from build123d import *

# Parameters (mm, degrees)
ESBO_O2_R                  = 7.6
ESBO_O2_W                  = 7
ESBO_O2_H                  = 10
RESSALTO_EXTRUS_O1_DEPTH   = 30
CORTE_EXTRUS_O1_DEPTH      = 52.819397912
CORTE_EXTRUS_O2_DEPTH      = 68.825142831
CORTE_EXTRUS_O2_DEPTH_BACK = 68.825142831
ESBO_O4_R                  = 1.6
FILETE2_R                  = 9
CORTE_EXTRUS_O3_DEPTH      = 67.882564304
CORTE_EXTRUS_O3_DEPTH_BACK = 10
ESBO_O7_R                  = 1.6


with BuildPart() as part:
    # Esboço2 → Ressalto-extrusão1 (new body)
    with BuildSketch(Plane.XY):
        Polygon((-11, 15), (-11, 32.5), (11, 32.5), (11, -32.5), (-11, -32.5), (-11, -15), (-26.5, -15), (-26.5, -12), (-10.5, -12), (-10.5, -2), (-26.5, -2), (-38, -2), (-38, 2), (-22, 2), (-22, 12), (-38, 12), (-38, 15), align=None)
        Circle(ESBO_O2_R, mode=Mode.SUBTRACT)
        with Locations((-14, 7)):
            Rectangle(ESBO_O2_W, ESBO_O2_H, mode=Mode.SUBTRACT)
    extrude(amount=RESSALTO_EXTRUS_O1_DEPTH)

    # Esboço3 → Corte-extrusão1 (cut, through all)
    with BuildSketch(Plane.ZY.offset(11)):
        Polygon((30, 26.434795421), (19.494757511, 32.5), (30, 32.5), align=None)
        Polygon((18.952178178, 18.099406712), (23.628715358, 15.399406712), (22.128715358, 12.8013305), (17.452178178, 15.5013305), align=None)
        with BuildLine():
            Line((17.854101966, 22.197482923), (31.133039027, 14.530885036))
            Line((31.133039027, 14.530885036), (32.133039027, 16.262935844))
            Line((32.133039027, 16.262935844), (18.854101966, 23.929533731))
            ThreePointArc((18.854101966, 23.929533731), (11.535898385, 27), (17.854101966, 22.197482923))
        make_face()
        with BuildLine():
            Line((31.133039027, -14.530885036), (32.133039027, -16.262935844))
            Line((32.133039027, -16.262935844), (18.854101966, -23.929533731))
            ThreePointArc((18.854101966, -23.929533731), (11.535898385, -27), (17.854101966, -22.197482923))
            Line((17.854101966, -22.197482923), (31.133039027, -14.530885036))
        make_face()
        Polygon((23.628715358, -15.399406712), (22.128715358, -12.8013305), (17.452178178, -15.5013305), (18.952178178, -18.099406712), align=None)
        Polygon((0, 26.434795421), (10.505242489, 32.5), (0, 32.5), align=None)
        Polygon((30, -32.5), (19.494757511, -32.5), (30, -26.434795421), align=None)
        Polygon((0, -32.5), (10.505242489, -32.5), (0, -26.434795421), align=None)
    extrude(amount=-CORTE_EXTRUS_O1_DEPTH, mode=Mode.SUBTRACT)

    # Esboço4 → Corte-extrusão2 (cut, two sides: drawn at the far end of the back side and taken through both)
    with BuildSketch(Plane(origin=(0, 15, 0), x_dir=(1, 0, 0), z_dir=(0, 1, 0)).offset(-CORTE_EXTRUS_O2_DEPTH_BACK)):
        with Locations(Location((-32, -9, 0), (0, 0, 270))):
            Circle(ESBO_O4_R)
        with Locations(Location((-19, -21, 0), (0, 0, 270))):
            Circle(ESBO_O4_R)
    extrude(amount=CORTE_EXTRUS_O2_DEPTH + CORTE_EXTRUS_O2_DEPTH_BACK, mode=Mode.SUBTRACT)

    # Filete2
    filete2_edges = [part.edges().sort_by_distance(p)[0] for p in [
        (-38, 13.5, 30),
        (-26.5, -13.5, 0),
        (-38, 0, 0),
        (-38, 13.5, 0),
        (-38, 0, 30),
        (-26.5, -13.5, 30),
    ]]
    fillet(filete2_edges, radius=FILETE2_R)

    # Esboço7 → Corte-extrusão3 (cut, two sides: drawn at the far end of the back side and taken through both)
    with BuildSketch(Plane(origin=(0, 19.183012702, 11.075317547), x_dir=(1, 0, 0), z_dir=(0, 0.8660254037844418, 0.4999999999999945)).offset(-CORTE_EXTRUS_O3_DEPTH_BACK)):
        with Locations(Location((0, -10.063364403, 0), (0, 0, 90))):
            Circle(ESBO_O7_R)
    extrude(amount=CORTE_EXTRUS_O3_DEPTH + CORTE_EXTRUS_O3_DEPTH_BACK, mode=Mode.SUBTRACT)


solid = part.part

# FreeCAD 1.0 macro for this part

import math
import FreeCAD as App
import Part
import Sketcher
Q = App.Units.Quantity


def edges_at(feature, points):
    """Names of the edges that pass closest to the given points."""
    edges = feature.Shape.Edges
    near = lambda p: min(range(len(edges)), key=lambda i: edges[i].distToShape(Part.Vertex(*p))[0])
    return sorted({f"Edge{near(p) + 1}" for p in points})

doc = App.newDocument("Part")
body = doc.addObject("PartDesign::Body", "Body")

sketch1 = doc.addObject("Sketcher::SketchObject", "Sketch")
body.addObject(sketch1)
sketch1.AttachmentSupport = (doc.XY_Plane, [""])
sketch1.MapMode = "FlatFace"
sketch1.addGeometry([
    Part.LineSegment(App.Vector(-11, 32.5, 0), App.Vector(-11, 15, 0)),
    Part.LineSegment(App.Vector(-11, 15, 0), App.Vector(-38, 15, 0)),
    Part.LineSegment(App.Vector(-38, 15, 0), App.Vector(-38, 12, 0)),
    Part.LineSegment(App.Vector(-38, 12, 0), App.Vector(-22, 12, 0)),
    Part.LineSegment(App.Vector(-22, 12, 0), App.Vector(-22, 2, 0)),
    Part.LineSegment(App.Vector(-22, 2, 0), App.Vector(-38, 2, 0)),
    Part.LineSegment(App.Vector(-38, 2, 0), App.Vector(-38, -2, 0)),
    Part.LineSegment(App.Vector(-38, -2, 0), App.Vector(-10.5, -2, 0)),
    Part.LineSegment(App.Vector(-10.5, -2, 0), App.Vector(-10.5, -12, 0)),
    Part.LineSegment(App.Vector(-10.5, -12, 0), App.Vector(-26.5, -12, 0)),
    Part.LineSegment(App.Vector(-26.5, -12, 0), App.Vector(-26.5, -15, 0)),
    Part.LineSegment(App.Vector(-26.5, -15, 0), App.Vector(-11, -15, 0)),
    Part.LineSegment(App.Vector(-11, -15, 0), App.Vector(-11, -32.5, 0)),
    Part.LineSegment(App.Vector(-11, -32.5, 0), App.Vector(11, -32.5, 0)),
    Part.LineSegment(App.Vector(11, -32.5, 0), App.Vector(11, 32.5, 0)),
    Part.LineSegment(App.Vector(11, 32.5, 0), App.Vector(-11, 32.5, 0)),
    Part.Circle(App.Vector(0, 0, 0), App.Vector(0, 0, 1), 7.6),
    Part.LineSegment(App.Vector(-17.5, 2, 0), App.Vector(-17.5, 12, 0)),
    Part.LineSegment(App.Vector(-17.5, 12, 0), App.Vector(-10.5, 12, 0)),
    Part.LineSegment(App.Vector(-10.5, 12, 0), App.Vector(-10.5, 2, 0)),
    Part.LineSegment(App.Vector(-10.5, 2, 0), App.Vector(-17.5, 2, 0)),
], False)
sketch1.addConstraint([
    Sketcher.Constraint("Coincident", 0, 2, 1, 1),
    Sketcher.Constraint("Coincident", 1, 2, 2, 1),
    Sketcher.Constraint("Coincident", 2, 2, 3, 1),
    Sketcher.Constraint("Coincident", 3, 2, 4, 1),
    Sketcher.Constraint("Coincident", 4, 2, 5, 1),
    Sketcher.Constraint("Coincident", 5, 2, 6, 1),
    Sketcher.Constraint("Coincident", 6, 2, 7, 1),
    Sketcher.Constraint("Coincident", 7, 2, 8, 1),
    Sketcher.Constraint("Coincident", 8, 2, 9, 1),
    Sketcher.Constraint("Coincident", 9, 2, 10, 1),
    Sketcher.Constraint("Coincident", 10, 2, 11, 1),
    Sketcher.Constraint("Coincident", 11, 2, 12, 1),
    Sketcher.Constraint("Coincident", 12, 2, 13, 1),
    Sketcher.Constraint("Coincident", 13, 2, 14, 1),
    Sketcher.Constraint("Coincident", 14, 2, 15, 1),
    Sketcher.Constraint("Coincident", 15, 2, 0, 1),
    Sketcher.Constraint("Coincident", 17, 2, 18, 1),
    Sketcher.Constraint("Coincident", 18, 2, 19, 1),
    Sketcher.Constraint("Coincident", 19, 2, 20, 1),
    Sketcher.Constraint("Coincident", 20, 2, 17, 1),
    Sketcher.Constraint("Vertical", 0),
    Sketcher.Constraint("Horizontal", 1),
    Sketcher.Constraint("Vertical", 2),
    Sketcher.Constraint("Horizontal", 3),
    Sketcher.Constraint("Vertical", 4),
    Sketcher.Constraint("Horizontal", 5),
    Sketcher.Constraint("Vertical", 6),
    Sketcher.Constraint("Horizontal", 7),
    Sketcher.Constraint("Vertical", 8),
    Sketcher.Constraint("Horizontal", 9),
    Sketcher.Constraint("Vertical", 10),
    Sketcher.Constraint("Horizontal", 11),
    Sketcher.Constraint("Vertical", 12),
    Sketcher.Constraint("Horizontal", 13),
    Sketcher.Constraint("Vertical", 14),
    Sketcher.Constraint("Horizontal", 15),
    Sketcher.Constraint("Vertical", 17),
    Sketcher.Constraint("Horizontal", 18),
    Sketcher.Constraint("Vertical", 19),
    Sketcher.Constraint("Horizontal", 20),
    Sketcher.Constraint("Coincident", 16, 3, -1, 1),
    Sketcher.Constraint("Symmetric", 12, 2, 14, 2, -1, 1),
    Sketcher.Constraint("Symmetric", 0, 2, 11, 2, -1),
    Sketcher.Constraint("Symmetric", 8, 2, 18, 2, -1),
    Sketcher.Constraint("Horizontal", 3, 2, 17, 2),
    Sketcher.Constraint("Horizontal", 5, 2, 19, 2),
    Sketcher.Constraint("Vertical", 2, 2, 5, 2),
    Sketcher.Constraint("Equal", 5, 9),
    Sketcher.Constraint("Equal", 4, 8),
    Sketcher.Constraint("Diameter", 16, 15.2),
    Sketcher.Constraint("DistanceX", 1, 2, 1, 1, 27.0),
    Sketcher.Constraint("DistanceX", 3, 1, 3, 2, 16.0),
    Sketcher.Constraint("DistanceX", 13, 1, 13, 2, 22.0),
    Sketcher.Constraint("DistanceX", 18, 1, 18, 2, 7.0),
    Sketcher.Constraint("DistanceY", 2, 2, 2, 1, 3.0),
    Sketcher.Constraint("DistanceY", 4, 2, 4, 1, 10.0),
    Sketcher.Constraint("DistanceY", 6, 2, 6, 1, 4.0),
    Sketcher.Constraint("DistanceY", 14, 1, 14, 2, 65.0),
    Sketcher.Constraint("DistanceX", 7, 1, 7, 2, 27.5),
])
pad1 = doc.addObject("PartDesign::Pad", "Pad")
body.addObject(pad1)
pad1.Profile = sketch1
pad1.Length = 30

sketch2 = doc.addObject("Sketcher::SketchObject", "Sketch001")
body.addObject(sketch2)
sketch2.AttachmentSupport = (doc.YZ_Plane, [""])
sketch2.MapMode = "FlatFace"
sketch2.AttachmentOffset = App.Placement(App.Vector(0, 0, -11), App.Rotation())
sketch2.addGeometry([
    Part.LineSegment(App.Vector(32.5, 19.494758, 0), App.Vector(26.434795, 30, 0)),
    Part.LineSegment(App.Vector(26.434795, 30, 0), App.Vector(32.5, 30, 0)),
    Part.LineSegment(App.Vector(32.5, 30, 0), App.Vector(32.5, 19.494758, 0)),
    Part.LineSegment(App.Vector(15.399407, 23.628715, 0), App.Vector(18.099407, 18.952178, 0)),
    Part.LineSegment(App.Vector(18.099407, 18.952178, 0), App.Vector(15.50133, 17.452178, 0)),
    Part.LineSegment(App.Vector(15.50133, 17.452178, 0), App.Vector(12.801331, 22.128715, 0)),
    Part.LineSegment(App.Vector(12.801331, 22.128715, 0), App.Vector(15.399407, 23.628715, 0)),
    Part.LineSegment(App.Vector(22.197483, 17.854102, 0), App.Vector(14.530885, 31.133039, 0)),
    Part.LineSegment(App.Vector(14.530885, 31.133039, 0), App.Vector(16.262936, 32.133039, 0)),
    Part.LineSegment(App.Vector(16.262936, 32.133039, 0), App.Vector(23.929534, 18.854102, 0)),
    Part.ArcOfCircle(Part.Circle(App.Vector(25, 15, 0), App.Vector(0, 0, 1), 4), math.radians(134.477512), math.radians(465.522488)),
    Part.LineSegment(App.Vector(-16.262936, 32.133039, 0), App.Vector(-14.530885, 31.133039, 0)),
    Part.LineSegment(App.Vector(-14.530885, 31.133039, 0), App.Vector(-22.197483, 17.854102, 0)),
    Part.ArcOfCircle(Part.Circle(App.Vector(-25, 15, 0), App.Vector(0, 0, 1), 4), math.radians(74.477512), math.radians(405.522488)),
    Part.LineSegment(App.Vector(-23.929534, 18.854102, 0), App.Vector(-16.262936, 32.133039, 0)),
    Part.LineSegment(App.Vector(-15.399407, 23.628715, 0), App.Vector(-12.801331, 22.128715, 0)),
    Part.LineSegment(App.Vector(-12.801331, 22.128715, 0), App.Vector(-15.50133, 17.452178, 0)),
    Part.LineSegment(App.Vector(-15.50133, 17.452178, 0), App.Vector(-18.099407, 18.952178, 0)),
    Part.LineSegment(App.Vector(-18.099407, 18.952178, 0), App.Vector(-15.399407, 23.628715, 0)),
    Part.LineSegment(App.Vector(26.434795, 0, 0), App.Vector(32.5, 10.505242, 0)),
    Part.LineSegment(App.Vector(32.5, 10.505242, 0), App.Vector(32.5, 0, 0)),
    Part.LineSegment(App.Vector(32.5, 0, 0), App.Vector(26.434795, 0, 0)),
    Part.LineSegment(App.Vector(-32.5, 19.494758, 0), App.Vector(-32.5, 30, 0)),
    Part.LineSegment(App.Vector(-32.5, 30, 0), App.Vector(-26.434795, 30, 0)),
    Part.LineSegment(App.Vector(-26.434795, 30, 0), App.Vector(-32.5, 19.494758, 0)),
    Part.LineSegment(App.Vector(-32.5, 0, 0), App.Vector(-32.5, 10.505242, 0)),
    Part.LineSegment(App.Vector(-32.5, 10.505242, 0), App.Vector(-26.434795, 0, 0)),
    Part.LineSegment(App.Vector(-26.434795, 0, 0), App.Vector(-32.5, 0, 0)),
], False)
sketch2.addConstraint([
    Sketcher.Constraint("Coincident", 0, 2, 1, 1),
    Sketcher.Constraint("Coincident", 1, 2, 2, 1),
    Sketcher.Constraint("Coincident", 2, 2, 0, 1),
    Sketcher.Constraint("Coincident", 3, 2, 4, 1),
    Sketcher.Constraint("Coincident", 4, 2, 5, 1),
    Sketcher.Constraint("Coincident", 5, 2, 6, 1),
    Sketcher.Constraint("Coincident", 6, 2, 3, 1),
    Sketcher.Constraint("Coincident", 7, 2, 8, 1),
    Sketcher.Constraint("Coincident", 8, 2, 9, 1),
    Sketcher.Constraint("Coincident", 9, 2, 10, 2),
    Sketcher.Constraint("Coincident", 10, 1, 7, 1),
    Sketcher.Constraint("Coincident", 11, 2, 12, 1),
    Sketcher.Constraint("Coincident", 12, 2, 13, 2),
    Sketcher.Constraint("Coincident", 13, 1, 14, 1),
    Sketcher.Constraint("Coincident", 14, 2, 11, 1),
    Sketcher.Constraint("Coincident", 15, 2, 16, 1),
    Sketcher.Constraint("Coincident", 16, 2, 17, 1),
    Sketcher.Constraint("Coincident", 17, 2, 18, 1),
    Sketcher.Constraint("Coincident", 18, 2, 15, 1),
    Sketcher.Constraint("Coincident", 19, 2, 20, 1),
    Sketcher.Constraint("Coincident", 20, 2, 21, 1),
    Sketcher.Constraint("Coincident", 21, 2, 19, 1),
    Sketcher.Constraint("Coincident", 22, 2, 23, 1),
    Sketcher.Constraint("Coincident", 23, 2, 24, 1),
    Sketcher.Constraint("Coincident", 24, 2, 22, 1),
    Sketcher.Constraint("Coincident", 25, 2, 26, 1),
    Sketcher.Constraint("Coincident", 26, 2, 27, 1),
    Sketcher.Constraint("Coincident", 27, 2, 25, 1),
    Sketcher.Constraint("Horizontal", 1),
    Sketcher.Constraint("Vertical", 2),
    Sketcher.Constraint("Vertical", 20),
    Sketcher.Constraint("Horizontal", 21),
    Sketcher.Constraint("Vertical", 22),
    Sketcher.Constraint("Horizontal", 23),
    Sketcher.Constraint("Vertical", 25),
    Sketcher.Constraint("Horizontal", 27),
    Sketcher.Constraint("Equal", 10, 13),
    Sketcher.Constraint("Symmetric", 21, 2, 26, 2, -1, 1),
    Sketcher.Constraint("Symmetric", 10, 3, 13, 3, -2),
    Sketcher.Constraint("Symmetric", 7, 2, 11, 2, -2),
    Sketcher.Constraint("Symmetric", 8, 2, 14, 2, -2),
    Sketcher.Constraint("Symmetric", 5, 2, 15, 2, -2),
    Sketcher.Constraint("Symmetric", 4, 2, 16, 2, -2),
    Sketcher.Constraint("Symmetric", 3, 2, 17, 2, -2),
    Sketcher.Constraint("Symmetric", 6, 2, 18, 2, -2),
    Sketcher.Constraint("Symmetric", 1, 2, 22, 2, -2),
    Sketcher.Constraint("Symmetric", 19, 2, 25, 2, -2),
    Sketcher.Constraint("PointOnObject", 20, 2, -1),
    Sketcher.Constraint("Parallel", 0, 3),
    Sketcher.Constraint("Perpendicular", 3, 4),
    Sketcher.Constraint("Perpendicular", 4, 5),
    Sketcher.Constraint("Perpendicular", 5, 6),
    Sketcher.Constraint("Perpendicular", 6, 7),
    Sketcher.Constraint("Perpendicular", 7, 8),
    Sketcher.Constraint("Perpendicular", 8, 9),
    Sketcher.Constraint("Perpendicular", 11, 12),
    Sketcher.Constraint("Parallel", 12, 14),
    Sketcher.Constraint("Parallel", 18, 19),
    Sketcher.Constraint("Parallel", 19, 24),
    Sketcher.Constraint("Horizontal", 2, 2, 24, 2),
    Sketcher.Constraint("Vertical", 2, 2, 19, 2),
    Sketcher.Constraint("Vertical", 0, 2, 21, 2),
    Sketcher.Constraint("Equal", 7, 9),
    Sketcher.Constraint("Radius", 10, 4.0),
    Sketcher.Constraint("Angle", 0, Q("120 deg")),
    Sketcher.Constraint("Distance", 4, 3.0),
    Sketcher.Constraint("Distance", 8, 2.0),
    Sketcher.Constraint("DistanceX", -1, 1, 10, 3, 25.0),
    Sketcher.Constraint("DistanceY", -1, 1, 10, 3, 15.0),
    Sketcher.Constraint("DistanceY", -1, 1, 0, 2, 30.0),
    Sketcher.Constraint("Distance", 3, 5.4),
    Sketcher.Constraint("DistanceX", -1, 1, 1, 2, 32.5),
    Sketcher.Constraint("Distance", 0, 12.130409),
    Sketcher.Constraint("DistanceY", -1, 1, 3, 2, 18.952178),
    Sketcher.Constraint("DistanceX", -1, 1, 4, 2, 15.50133),
    Sketcher.Constraint("DistanceY", -1, 1, 7, 2, 31.133039),
])
pocket1 = doc.addObject("PartDesign::Pocket", "Pocket")
body.addObject(pocket1)
pocket1.Profile = sketch2
pocket1.Type = "ThroughAll"
pocket1.Reversed = True

sketch3 = doc.addObject("Sketcher::SketchObject", "Sketch002")
body.addObject(sketch3)
sketch3.AttachmentSupport = (doc.XZ_Plane, [""])
sketch3.MapMode = "FlatFace"
sketch3.AttachmentOffset = App.Placement(App.Vector(0, 0, -15), App.Rotation())
sketch3.addGeometry([
    Part.Circle(App.Vector(-32, 9, 0), App.Vector(0, 0, 1), 1.6),
    Part.Circle(App.Vector(-19, 21, 0), App.Vector(0, 0, 1), 1.6),
], False)
sketch3.addConstraint([
    Sketcher.Constraint("Equal", 0, 1),
    Sketcher.Constraint("Diameter", 0, 3.2),
    Sketcher.Constraint("DistanceX", 0, 3, -1, 1, 32.0),
    Sketcher.Constraint("DistanceY", -1, 1, 0, 3, 9.0),
    Sketcher.Constraint("DistanceX", 1, 3, -1, 1, 19.0),
    Sketcher.Constraint("DistanceY", -1, 1, 1, 3, 21.0),
])
pocket2 = doc.addObject("PartDesign::Pocket", "Pocket001")
body.addObject(pocket2)
pocket2.Profile = sketch3
pocket2.Type = "ThroughAll"
pocket2.Midplane = True
doc.recompute()

fillet = doc.addObject("PartDesign::Fillet", "Fillet")
body.addObject(fillet)
fillet.Base = (pocket2, edges_at(pocket2, [
    (-38, 13.5, 30),
    (-26.5, -13.5, 0),
    (-38, 0, 0),
    (-38, 13.5, 0),
    (-38, 0, 30),
    (-26.5, -13.5, 30),
]))
fillet.Radius = 9

sketch4 = doc.addObject("Sketcher::SketchObject", "Sketch003")
body.addObject(sketch4)
sketch4.Placement = App.Placement(App.Vector(0, 19.183013, 11.075318), App.Rotation(App.Vector(1, 0, 0), App.Vector(0, 0.5, -0.866025404), App.Vector(0, 0.866025404, 0.5), "ZXY"))
sketch4.addGeometry(Part.Circle(App.Vector(0, -10.063364, 0), App.Vector(0, 0, 1), 1.6), False)
sketch4.addConstraint([
    Sketcher.Constraint("PointOnObject", 0, 3, -2),
    Sketcher.Constraint("Diameter", 0, 3.2),
    Sketcher.Constraint("DistanceY", 0, 3, -1, 1, 10.063364),
])
pocket3 = doc.addObject("PartDesign::Pocket", "Pocket002")
body.addObject(pocket3)
pocket3.Profile = sketch4
pocket3.Type = "TwoLengths"
pocket3.Length = 67.882564
pocket3.Length2 = 10
pocket3.Reversed = True

doc.recompute()
